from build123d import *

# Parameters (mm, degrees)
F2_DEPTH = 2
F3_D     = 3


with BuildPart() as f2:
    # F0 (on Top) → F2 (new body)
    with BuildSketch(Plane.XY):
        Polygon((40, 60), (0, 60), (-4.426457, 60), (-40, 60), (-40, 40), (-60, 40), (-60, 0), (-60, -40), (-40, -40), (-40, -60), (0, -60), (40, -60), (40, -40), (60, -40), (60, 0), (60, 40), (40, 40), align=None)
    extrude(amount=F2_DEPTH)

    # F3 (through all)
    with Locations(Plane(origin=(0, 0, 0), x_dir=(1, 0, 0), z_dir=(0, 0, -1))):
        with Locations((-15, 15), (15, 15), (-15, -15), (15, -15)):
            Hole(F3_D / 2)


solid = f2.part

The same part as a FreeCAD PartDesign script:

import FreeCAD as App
import Part
import Sketcher
from FreeCAD import Vector

doc = App.newDocument("Part")
body = doc.addObject("PartDesign::Body", "Body")

# Sketch on XY plane
sketch1 = body.newObject("Sketcher::SketchObject", "Sketch")
sketch1.AttachmentSupport = (doc.getObject("XY_Plane"), [""])
sketch1.MapMode = "FlatFace"
sketch1.addGeometry([
    Part.LineSegment(Vector(40, 60, 0), Vector(-40, 60, 0)),  # 0
    Part.LineSegment(Vector(-40, 60, 0), Vector(-40, 40, 0)),  # 1
    Part.LineSegment(Vector(-40, 40, 0), Vector(-60, 40, 0)),  # 2
    Part.LineSegment(Vector(-60, 40, 0), Vector(-60, -40, 0)),  # 3
    Part.LineSegment(Vector(-60, -40, 0), Vector(-40, -40, 0)),  # 4
    Part.LineSegment(Vector(-40, -40, 0), Vector(-40, -60, 0)),  # 5
    Part.LineSegment(Vector(-40, -60, 0), Vector(40, -60, 0)),  # 6
    Part.LineSegment(Vector(40, -60, 0), Vector(40, -40, 0)),  # 7
    Part.LineSegment(Vector(40, -40, 0), Vector(60, -40, 0)),  # 8
    Part.LineSegment(Vector(60, -40, 0), Vector(60, 40, 0)),  # 9
    Part.LineSegment(Vector(60, 40, 0), Vector(40, 40, 0)),  # 10
    Part.LineSegment(Vector(40, 40, 0), Vector(40, 60, 0)),  # 11
], False)
sketch1.addConstraint([
    Sketcher.Constraint("Coincident", 0, 2, 1, 1),
    Sketcher.Constraint("Coincident", 1, 2, 2, 1),
    Sketcher.Constraint("Coincident", 2, 2, 3, 1),
    Sketcher.Constraint("Coincident", 3, 2, 4, 1),
    Sketcher.Constraint("Coincident", 4, 2, 5, 1),
    Sketcher.Constraint("Coincident", 5, 2, 6, 1),
    Sketcher.Constraint("Coincident", 6, 2, 7, 1),
    Sketcher.Constraint("Coincident", 7, 2, 8, 1),
    Sketcher.Constraint("Coincident", 8, 2, 9, 1),
    Sketcher.Constraint("Coincident", 9, 2, 10, 1),
    Sketcher.Constraint("Coincident", 10, 2, 11, 1),
    Sketcher.Constraint("Coincident", 11, 2, 0, 1),
    Sketcher.Constraint("Horizontal", 0),
    Sketcher.Constraint("Vertical", 1),
    Sketcher.Constraint("Horizontal", 2),
    Sketcher.Constraint("Vertical", 3),
    Sketcher.Constraint("Horizontal", 4),
    Sketcher.Constraint("Vertical", 5),
    Sketcher.Constraint("Horizontal", 6),
    Sketcher.Constraint("Vertical", 7),
    Sketcher.Constraint("Horizontal", 8),
    Sketcher.Constraint("Vertical", 9),
    Sketcher.Constraint("Horizontal", 10),
    Sketcher.Constraint("Vertical", 11),
    Sketcher.Constraint("Symmetric", 0, 2, 6, 2, -1, 1),
    Sketcher.Constraint("Symmetric", 2, 2, 8, 2, -1, 1),
    Sketcher.Constraint("Symmetric", 4, 2, 10, 2, -1, 1),
    Sketcher.Constraint("Symmetric", 4, 2, 7, 2, -2),
    Sketcher.Constraint("Equal", 10, 1),
    Sketcher.Constraint("Equal", 6, 3),
    Sketcher.Constraint("DistanceX", 0, 2, 0, 1, 80.0),
    Sketcher.Constraint("DistanceX", 2, 2, 2, 1, 20.0),
])
pad1 = body.newObject("PartDesign::Pad", "Pad")
pad1.Profile = sketch1
pad1.Length = 2

# Sketch on XY plane
sketch2 = body.newObject("Sketcher::SketchObject", "Sketch001")
sketch2.AttachmentSupport = (doc.getObject("XY_Plane"), [""])
sketch2.MapMode = "FlatFace"
sketch2.addGeometry([
    Part.Circle(Vector(-15, -15, 0), Vector(0, 0, 1), 1.5),
    Part.Circle(Vector(15, -15, 0), Vector(0, 0, 1), 1.5),
    Part.Circle(Vector(-15, 15, 0), Vector(0, 0, 1), 1.5),
    Part.Circle(Vector(15, 15, 0), Vector(0, 0, 1), 1.5),
], False)
sketch2.addConstraint([
    Sketcher.Constraint("Equal", 0, 1),
    Sketcher.Constraint("Equal", 1, 2),
    Sketcher.Constraint("Equal", 2, 3),
    Sketcher.Constraint("Symmetric", 1, 3, 2, 3, -1, 1),
    Sketcher.Constraint("Symmetric", 0, 3, 3, 3, -1, 1),
    Sketcher.Constraint("Symmetric", 0, 3, 1, 3, -2),
    Sketcher.Constraint("Diameter", 0, 3.0),
    Sketcher.Constraint("DistanceX", 0, 3, -1, 1, 15.0),
    Sketcher.Constraint("DistanceY", 0, 3, -1, 1, 15.0),
])
doc.recompute()
hole = body.newObject("PartDesign::Hole", "Hole")
hole.Profile = sketch2
hole.ThreadType = "None"
hole.Diameter = 3
hole.DepthType = "ThroughAll"
hole.Reversed = True

doc.recompute()
